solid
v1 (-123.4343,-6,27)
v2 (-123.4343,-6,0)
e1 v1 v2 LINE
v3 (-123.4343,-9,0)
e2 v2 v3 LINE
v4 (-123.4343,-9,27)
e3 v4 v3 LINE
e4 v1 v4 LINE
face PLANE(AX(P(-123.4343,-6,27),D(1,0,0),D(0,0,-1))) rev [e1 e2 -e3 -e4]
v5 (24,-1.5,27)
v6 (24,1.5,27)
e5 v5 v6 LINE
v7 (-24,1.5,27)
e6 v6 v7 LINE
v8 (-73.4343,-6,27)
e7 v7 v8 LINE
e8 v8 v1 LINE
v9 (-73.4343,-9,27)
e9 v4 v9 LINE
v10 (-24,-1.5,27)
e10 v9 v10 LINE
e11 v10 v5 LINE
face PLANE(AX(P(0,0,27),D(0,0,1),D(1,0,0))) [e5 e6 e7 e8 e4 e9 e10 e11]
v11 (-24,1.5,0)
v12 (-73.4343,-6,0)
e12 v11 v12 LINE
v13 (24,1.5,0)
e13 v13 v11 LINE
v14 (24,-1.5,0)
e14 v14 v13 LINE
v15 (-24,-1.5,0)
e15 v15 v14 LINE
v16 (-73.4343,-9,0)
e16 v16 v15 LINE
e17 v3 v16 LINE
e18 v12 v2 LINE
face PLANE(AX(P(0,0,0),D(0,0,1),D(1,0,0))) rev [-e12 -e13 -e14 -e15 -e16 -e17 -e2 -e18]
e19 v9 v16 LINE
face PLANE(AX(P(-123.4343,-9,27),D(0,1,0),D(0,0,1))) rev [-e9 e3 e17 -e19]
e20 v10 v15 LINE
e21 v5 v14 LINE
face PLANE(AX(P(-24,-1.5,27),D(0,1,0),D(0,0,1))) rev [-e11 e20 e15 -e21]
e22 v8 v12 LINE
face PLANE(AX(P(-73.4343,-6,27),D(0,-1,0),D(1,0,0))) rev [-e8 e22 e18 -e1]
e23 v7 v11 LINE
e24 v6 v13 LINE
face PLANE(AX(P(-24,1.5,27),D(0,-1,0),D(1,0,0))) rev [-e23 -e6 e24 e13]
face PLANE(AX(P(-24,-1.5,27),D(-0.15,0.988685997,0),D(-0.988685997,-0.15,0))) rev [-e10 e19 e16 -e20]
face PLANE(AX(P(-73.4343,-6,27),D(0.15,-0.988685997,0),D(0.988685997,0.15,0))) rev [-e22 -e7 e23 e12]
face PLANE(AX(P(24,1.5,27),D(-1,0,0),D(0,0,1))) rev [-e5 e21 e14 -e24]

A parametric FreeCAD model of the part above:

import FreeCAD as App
import Part
import Sketcher

doc = App.newDocument("Part")
body = doc.addObject("PartDesign::Body", "Body")

sketch1 = body.newObject("Sketcher::SketchObject", "Sketch")
sketch1.AttachmentSupport = (doc.getObject("XY_Plane"), [""])
sketch1.MapMode = "FlatFace"
sketch1.addGeometry([
    Part.LineSegment(App.Vector(-73.4, -9, 0), App.Vector(-24, -1.5, 0)),
    Part.LineSegment(App.Vector(-24, -1.5, 0), App.Vector(24, -1.5, 0)),
    Part.LineSegment(App.Vector(24, -1.5, 0), App.Vector(24, 1.5, 0)),
    Part.LineSegment(App.Vector(24, 1.5, 0), App.Vector(-24, 1.5, 0)),
    Part.LineSegment(App.Vector(-24, 1.5, 0), App.Vector(-73.4, -6, 0)),
    Part.LineSegment(App.Vector(-73.4, -6, 0), App.Vector(-123.4, -6, 0)),
    Part.LineSegment(App.Vector(-123.4, -6, 0), App.Vector(-123.4, -9, 0)),
    Part.LineSegment(App.Vector(-123.4, -9, 0), App.Vector(-73.4, -9, 0)),
], False)
sketch1.addConstraint([
    Sketcher.Constraint("Coincident", 0, 2, 1, 1),
    Sketcher.Constraint("Coincident", 1, 2, 2, 1),
    Sketcher.Constraint("Coincident", 2, 2, 3, 1),
    Sketcher.Constraint("Coincident", 3, 2, 4, 1),
    Sketcher.Constraint("Coincident", 4, 2, 5, 1),
    Sketcher.Constraint("Coincident", 5, 2, 6, 1),
    Sketcher.Constraint("Coincident", 6, 2, 7, 1),
    Sketcher.Constraint("Coincident", 7, 2, 0, 1),
    Sketcher.Constraint("Horizontal", 1),
    Sketcher.Constraint("Vertical", 2),
    Sketcher.Constraint("Horizontal", 3),
    Sketcher.Constraint("Horizontal", 5),
    Sketcher.Constraint("Vertical", 6),
    Sketcher.Constraint("Horizontal", 7),
    Sketcher.Constraint("Symmetric", 0, 2, 2, 2, -1, 1),
    Sketcher.Constraint("Parallel", 0, 4),
    Sketcher.Constraint("Vertical", 0, 2, 3, 2),
    Sketcher.Constraint("Vertical", 4, 2, 7, 2),
    Sketcher.Constraint("DistanceX", 1, 1, 1, 2, 48.0),
    Sketcher.Constraint("DistanceX", 5, 2, 5, 1, 50.0),
    Sketcher.Constraint("DistanceY", 2, 1, 2, 2, 3.0),
    Sketcher.Constraint("Distance", 0, 50.0),
    Sketcher.Constraint("DistanceY", 4, 2, -1, 1, 6.0),
])
pad1 = body.newObject("PartDesign::Pad", "Pad")
pad1.Profile = sketch1
pad1.Length = 27

doc.recompute()
